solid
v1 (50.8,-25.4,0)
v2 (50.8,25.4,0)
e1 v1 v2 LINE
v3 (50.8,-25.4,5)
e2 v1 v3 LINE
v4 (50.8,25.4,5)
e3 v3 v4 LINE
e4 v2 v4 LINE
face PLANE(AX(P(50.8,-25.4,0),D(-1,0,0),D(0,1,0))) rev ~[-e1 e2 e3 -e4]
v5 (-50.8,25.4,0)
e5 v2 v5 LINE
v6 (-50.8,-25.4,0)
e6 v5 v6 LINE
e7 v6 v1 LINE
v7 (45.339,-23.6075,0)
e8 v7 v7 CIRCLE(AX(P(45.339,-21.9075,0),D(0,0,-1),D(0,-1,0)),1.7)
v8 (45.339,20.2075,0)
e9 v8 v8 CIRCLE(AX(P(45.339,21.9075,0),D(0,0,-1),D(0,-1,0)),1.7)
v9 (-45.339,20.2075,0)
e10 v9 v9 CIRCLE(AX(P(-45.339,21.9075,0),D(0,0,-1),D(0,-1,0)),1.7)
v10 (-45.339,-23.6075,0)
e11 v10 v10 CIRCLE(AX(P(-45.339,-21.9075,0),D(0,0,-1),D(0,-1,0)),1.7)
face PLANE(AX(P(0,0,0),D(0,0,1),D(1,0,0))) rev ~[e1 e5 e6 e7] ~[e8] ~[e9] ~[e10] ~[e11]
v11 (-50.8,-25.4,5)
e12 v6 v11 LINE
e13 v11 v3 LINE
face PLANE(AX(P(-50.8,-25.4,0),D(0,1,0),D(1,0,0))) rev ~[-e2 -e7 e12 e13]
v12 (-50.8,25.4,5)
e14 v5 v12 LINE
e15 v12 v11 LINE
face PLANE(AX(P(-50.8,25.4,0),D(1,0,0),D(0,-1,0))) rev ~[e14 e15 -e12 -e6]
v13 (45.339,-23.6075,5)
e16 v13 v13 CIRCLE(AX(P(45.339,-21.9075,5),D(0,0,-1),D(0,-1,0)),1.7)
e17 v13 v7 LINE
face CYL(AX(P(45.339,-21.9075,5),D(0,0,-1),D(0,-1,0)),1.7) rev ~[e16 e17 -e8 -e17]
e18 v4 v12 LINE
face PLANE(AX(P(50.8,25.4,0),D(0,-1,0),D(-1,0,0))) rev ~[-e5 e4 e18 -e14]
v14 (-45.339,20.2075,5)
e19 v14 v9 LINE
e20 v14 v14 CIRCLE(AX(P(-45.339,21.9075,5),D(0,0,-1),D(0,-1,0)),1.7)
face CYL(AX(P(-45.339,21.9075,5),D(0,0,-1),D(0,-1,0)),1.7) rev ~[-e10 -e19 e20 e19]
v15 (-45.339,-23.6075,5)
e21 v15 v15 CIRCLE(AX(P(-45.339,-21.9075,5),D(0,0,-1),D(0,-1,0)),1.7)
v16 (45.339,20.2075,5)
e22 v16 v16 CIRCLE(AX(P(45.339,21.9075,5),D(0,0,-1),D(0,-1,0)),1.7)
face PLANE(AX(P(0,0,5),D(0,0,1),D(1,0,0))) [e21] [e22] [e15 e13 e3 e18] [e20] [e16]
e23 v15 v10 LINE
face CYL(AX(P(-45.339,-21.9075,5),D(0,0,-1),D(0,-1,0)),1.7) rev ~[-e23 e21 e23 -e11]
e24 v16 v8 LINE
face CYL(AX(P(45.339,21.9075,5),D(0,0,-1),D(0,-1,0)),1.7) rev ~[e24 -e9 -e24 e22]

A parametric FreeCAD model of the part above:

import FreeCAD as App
import Part
import Sketcher

doc = App.newDocument("Part")
body = doc.addObject("PartDesign::Body", "Body")

# Sketch on XY plane
sketch1 = doc.addObject("Sketcher::SketchObject", "Sketch")
body.addObject(sketch1)
sketch1.AttachmentSupport = (doc.XY_Plane, [""])
sketch1.MapMode = "FlatFace"
sketch1.addGeometry([
    Part.LineSegment(App.Vector(-50.8, 25.4, 0), App.Vector(-50.8, -25.4, 0)),
    Part.LineSegment(App.Vector(-50.8, -25.4, 0), App.Vector(50.8, -25.4, 0)),
    Part.LineSegment(App.Vector(50.8, -25.4, 0), App.Vector(50.8, 25.4, 0)),
    Part.LineSegment(App.Vector(50.8, 25.4, 0), App.Vector(-50.8, 25.4, 0)),
], False)
sketch1.addConstraint([
    Sketcher.Constraint("Coincident", 0, 2, 1, 1),
    Sketcher.Constraint("Coincident", 1, 2, 2, 1),
    Sketcher.Constraint("Coincident", 2, 2, 3, 1),
    Sketcher.Constraint("Coincident", 3, 2, 0, 1),
    Sketcher.Constraint("Vertical", 0),
    Sketcher.Constraint("Horizontal", 1),
    Sketcher.Constraint("Vertical", 2),
    Sketcher.Constraint("Horizontal", 3),
    Sketcher.Constraint("Symmetric", 0, 2, 2, 2, -1, 1),
    Sketcher.Constraint("DistanceX", 1, 1, 1, 2, 101.6),
    Sketcher.Constraint("DistanceY", 0, 2, 0, 1, 50.8),
])
pad1 = doc.addObject("PartDesign::Pad", "Pad")
body.addObject(pad1)
pad1.Profile = sketch1
pad1.Length = 5

# Sketch on XY plane
sketch2 = doc.addObject("Sketcher::SketchObject", "Sketch001")
body.addObject(sketch2)
sketch2.AttachmentSupport = (doc.XY_Plane, [""])
sketch2.MapMode = "FlatFace"
sketch2.AttachmentOffset = App.Placement(App.Vector(0, 0, 5), App.Rotation())
sketch2.addGeometry([
    Part.Circle(App.Vector(-45.339, 21.9075, 0), App.Vector(0, 0, 1), 1.7),
    Part.Circle(App.Vector(45.339, 21.9075, 0), App.Vector(0, 0, 1), 1.7),
    Part.Circle(App.Vector(45.339, -21.9075, 0), App.Vector(0, 0, 1), 1.7),
    Part.Circle(App.Vector(-45.339, -21.9075, 0), App.Vector(0, 0, 1), 1.7),
], False)
sketch2.addConstraint([
    Sketcher.Constraint("Equal", 0, 1),
    Sketcher.Constraint("Equal", 1, 2),
    Sketcher.Constraint("Equal", 2, 3),
    Sketcher.Constraint("Symmetric", 0, 3, 2, 3, -1, 1),
    Sketcher.Constraint("Symmetric", 1, 3, 3, 3, -1, 1),
    Sketcher.Constraint("Symmetric", 0, 3, 1, 3, -2),
    Sketcher.Constraint("Diameter", 0, 3.4),
    Sketcher.Constraint("DistanceX", 0, 3, -1, 1, 45.339),
    Sketcher.Constraint("DistanceY", 2, 3, 1, 3, 43.815),
])
doc.recompute()
hole = doc.addObject("PartDesign::Hole", "Hole")
body.addObject(hole)
hole.Profile = sketch2
hole.ThreadType = "None"
hole.Diameter = 3.4
hole.DepthType = "ThroughAll"

doc.recompute()
